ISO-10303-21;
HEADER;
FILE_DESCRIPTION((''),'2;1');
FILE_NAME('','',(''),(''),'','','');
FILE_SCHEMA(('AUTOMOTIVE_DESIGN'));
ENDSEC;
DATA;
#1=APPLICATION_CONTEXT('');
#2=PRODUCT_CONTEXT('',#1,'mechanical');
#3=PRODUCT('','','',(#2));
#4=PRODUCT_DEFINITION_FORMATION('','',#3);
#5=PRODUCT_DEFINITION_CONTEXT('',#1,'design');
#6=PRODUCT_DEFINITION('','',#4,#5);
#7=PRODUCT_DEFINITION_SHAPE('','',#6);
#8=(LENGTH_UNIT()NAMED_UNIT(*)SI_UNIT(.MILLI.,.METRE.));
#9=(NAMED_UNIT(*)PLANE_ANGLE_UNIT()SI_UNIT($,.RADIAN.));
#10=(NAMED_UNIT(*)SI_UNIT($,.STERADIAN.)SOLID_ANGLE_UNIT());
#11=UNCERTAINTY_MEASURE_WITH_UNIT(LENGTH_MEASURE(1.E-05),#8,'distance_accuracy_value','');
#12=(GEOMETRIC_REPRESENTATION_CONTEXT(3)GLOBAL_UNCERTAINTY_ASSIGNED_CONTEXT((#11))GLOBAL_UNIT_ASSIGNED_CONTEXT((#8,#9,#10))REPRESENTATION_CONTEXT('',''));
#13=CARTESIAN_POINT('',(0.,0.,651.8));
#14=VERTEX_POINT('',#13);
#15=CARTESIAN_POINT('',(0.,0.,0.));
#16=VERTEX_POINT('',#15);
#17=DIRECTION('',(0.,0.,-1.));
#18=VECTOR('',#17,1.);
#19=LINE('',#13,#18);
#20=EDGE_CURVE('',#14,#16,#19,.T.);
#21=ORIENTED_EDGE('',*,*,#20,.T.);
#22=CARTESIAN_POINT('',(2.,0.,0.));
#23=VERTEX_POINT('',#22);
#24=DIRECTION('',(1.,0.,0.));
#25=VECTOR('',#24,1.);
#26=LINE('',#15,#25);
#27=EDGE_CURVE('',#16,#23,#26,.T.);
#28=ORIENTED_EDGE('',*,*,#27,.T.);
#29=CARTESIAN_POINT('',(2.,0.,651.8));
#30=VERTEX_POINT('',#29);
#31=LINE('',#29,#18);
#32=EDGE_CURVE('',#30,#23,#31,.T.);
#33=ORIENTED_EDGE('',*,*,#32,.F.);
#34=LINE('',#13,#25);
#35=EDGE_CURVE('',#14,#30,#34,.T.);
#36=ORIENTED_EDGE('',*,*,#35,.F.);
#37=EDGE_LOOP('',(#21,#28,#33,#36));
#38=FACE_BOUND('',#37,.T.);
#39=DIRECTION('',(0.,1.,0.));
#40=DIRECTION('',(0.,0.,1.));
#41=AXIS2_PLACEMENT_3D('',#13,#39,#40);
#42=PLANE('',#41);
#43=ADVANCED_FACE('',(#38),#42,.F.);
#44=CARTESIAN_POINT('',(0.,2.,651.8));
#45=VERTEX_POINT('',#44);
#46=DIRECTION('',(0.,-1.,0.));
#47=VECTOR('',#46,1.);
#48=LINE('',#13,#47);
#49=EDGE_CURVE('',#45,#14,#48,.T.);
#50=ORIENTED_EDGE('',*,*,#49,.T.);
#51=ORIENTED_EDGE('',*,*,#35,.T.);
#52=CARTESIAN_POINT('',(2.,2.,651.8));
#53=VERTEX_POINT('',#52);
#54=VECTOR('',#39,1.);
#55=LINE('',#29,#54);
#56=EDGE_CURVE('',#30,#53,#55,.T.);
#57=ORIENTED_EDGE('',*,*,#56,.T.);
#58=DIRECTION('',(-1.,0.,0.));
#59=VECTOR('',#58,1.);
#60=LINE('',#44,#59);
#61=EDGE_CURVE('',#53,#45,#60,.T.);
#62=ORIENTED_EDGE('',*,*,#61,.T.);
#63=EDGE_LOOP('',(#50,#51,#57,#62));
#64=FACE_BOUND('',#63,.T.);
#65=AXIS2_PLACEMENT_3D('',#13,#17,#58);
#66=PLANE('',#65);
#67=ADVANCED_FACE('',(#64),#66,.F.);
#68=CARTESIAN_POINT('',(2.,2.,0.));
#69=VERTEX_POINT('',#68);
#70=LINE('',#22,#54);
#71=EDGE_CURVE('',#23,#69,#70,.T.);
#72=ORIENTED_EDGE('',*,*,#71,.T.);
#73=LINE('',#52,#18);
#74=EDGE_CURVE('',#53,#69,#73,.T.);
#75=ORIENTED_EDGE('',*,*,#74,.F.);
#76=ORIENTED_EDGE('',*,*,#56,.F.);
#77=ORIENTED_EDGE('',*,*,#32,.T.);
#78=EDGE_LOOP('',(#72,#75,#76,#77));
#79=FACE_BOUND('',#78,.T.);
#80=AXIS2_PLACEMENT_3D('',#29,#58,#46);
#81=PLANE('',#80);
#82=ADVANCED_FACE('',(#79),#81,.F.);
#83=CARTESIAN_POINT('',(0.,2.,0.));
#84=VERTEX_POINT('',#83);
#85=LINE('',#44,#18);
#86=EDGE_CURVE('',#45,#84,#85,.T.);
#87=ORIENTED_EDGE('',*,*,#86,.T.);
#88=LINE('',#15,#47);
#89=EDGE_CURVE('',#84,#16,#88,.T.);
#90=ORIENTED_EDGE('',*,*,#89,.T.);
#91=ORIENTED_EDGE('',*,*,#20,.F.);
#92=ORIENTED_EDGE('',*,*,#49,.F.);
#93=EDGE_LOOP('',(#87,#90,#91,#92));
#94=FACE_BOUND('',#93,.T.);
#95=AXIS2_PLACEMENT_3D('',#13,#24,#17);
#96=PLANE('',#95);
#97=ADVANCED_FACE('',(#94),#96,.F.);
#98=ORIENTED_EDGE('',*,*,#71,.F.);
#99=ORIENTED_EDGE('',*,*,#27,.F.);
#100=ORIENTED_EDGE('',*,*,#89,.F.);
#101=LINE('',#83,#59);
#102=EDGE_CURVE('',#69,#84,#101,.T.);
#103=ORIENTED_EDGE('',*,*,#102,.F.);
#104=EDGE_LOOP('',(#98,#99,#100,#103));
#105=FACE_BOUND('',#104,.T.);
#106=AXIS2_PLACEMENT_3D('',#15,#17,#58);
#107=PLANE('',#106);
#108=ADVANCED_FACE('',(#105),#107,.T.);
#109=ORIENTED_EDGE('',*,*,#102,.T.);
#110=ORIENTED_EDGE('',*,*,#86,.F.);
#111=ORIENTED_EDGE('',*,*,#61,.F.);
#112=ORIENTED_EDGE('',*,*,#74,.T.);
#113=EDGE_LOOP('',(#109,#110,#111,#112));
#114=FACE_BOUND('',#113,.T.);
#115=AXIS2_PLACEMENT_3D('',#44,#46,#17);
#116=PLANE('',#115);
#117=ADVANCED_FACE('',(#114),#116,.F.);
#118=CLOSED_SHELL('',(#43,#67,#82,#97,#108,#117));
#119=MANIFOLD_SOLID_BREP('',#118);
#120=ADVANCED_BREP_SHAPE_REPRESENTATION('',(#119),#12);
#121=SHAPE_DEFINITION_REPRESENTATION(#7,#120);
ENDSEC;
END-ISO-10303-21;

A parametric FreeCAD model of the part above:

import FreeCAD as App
import Part
import Sketcher
from FreeCAD import Vector

doc = App.newDocument("Part")
body = doc.addObject("PartDesign::Body", "Body")

# Sketch on XY plane
sketch1 = body.newObject("Sketcher::SketchObject", "Sketch")
sketch1.AttachmentSupport = (doc.getObject("XY_Plane"), [""])
sketch1.MapMode = "FlatFace"
sketch1.addGeometry([
    Part.LineSegment(Vector(0, 2, 0), Vector(0, 0, 0)),
    Part.LineSegment(Vector(0, 0, 0), Vector(2, 0, 0)),
    Part.LineSegment(Vector(2, 0, 0), Vector(2, 2, 0)),
    Part.LineSegment(Vector(2, 2, 0), Vector(0, 2, 0)),
], False)
sketch1.addConstraint([
    Sketcher.Constraint("Coincident", 0, 2, 1, 1),
    Sketcher.Constraint("Coincident", 1, 2, 2, 1),
    Sketcher.Constraint("Coincident", 2, 2, 3, 1),
    Sketcher.Constraint("Coincident", 3, 2, 0, 1),
    Sketcher.Constraint("Vertical", 0),
    Sketcher.Constraint("Horizontal", 1),
    Sketcher.Constraint("Vertical", 2),
    Sketcher.Constraint("Horizontal", 3),
    Sketcher.Constraint("Coincident", 0, 2, -1, 1),
    Sketcher.Constraint("Equal", 3, 0),
    Sketcher.Constraint("DistanceX", 1, 1, 1, 2, 2.0),
])
pad1 = body.newObject("PartDesign::Pad", "Pad")
pad1.Profile = sketch1
pad1.Length = 651.8

doc.recompute()
